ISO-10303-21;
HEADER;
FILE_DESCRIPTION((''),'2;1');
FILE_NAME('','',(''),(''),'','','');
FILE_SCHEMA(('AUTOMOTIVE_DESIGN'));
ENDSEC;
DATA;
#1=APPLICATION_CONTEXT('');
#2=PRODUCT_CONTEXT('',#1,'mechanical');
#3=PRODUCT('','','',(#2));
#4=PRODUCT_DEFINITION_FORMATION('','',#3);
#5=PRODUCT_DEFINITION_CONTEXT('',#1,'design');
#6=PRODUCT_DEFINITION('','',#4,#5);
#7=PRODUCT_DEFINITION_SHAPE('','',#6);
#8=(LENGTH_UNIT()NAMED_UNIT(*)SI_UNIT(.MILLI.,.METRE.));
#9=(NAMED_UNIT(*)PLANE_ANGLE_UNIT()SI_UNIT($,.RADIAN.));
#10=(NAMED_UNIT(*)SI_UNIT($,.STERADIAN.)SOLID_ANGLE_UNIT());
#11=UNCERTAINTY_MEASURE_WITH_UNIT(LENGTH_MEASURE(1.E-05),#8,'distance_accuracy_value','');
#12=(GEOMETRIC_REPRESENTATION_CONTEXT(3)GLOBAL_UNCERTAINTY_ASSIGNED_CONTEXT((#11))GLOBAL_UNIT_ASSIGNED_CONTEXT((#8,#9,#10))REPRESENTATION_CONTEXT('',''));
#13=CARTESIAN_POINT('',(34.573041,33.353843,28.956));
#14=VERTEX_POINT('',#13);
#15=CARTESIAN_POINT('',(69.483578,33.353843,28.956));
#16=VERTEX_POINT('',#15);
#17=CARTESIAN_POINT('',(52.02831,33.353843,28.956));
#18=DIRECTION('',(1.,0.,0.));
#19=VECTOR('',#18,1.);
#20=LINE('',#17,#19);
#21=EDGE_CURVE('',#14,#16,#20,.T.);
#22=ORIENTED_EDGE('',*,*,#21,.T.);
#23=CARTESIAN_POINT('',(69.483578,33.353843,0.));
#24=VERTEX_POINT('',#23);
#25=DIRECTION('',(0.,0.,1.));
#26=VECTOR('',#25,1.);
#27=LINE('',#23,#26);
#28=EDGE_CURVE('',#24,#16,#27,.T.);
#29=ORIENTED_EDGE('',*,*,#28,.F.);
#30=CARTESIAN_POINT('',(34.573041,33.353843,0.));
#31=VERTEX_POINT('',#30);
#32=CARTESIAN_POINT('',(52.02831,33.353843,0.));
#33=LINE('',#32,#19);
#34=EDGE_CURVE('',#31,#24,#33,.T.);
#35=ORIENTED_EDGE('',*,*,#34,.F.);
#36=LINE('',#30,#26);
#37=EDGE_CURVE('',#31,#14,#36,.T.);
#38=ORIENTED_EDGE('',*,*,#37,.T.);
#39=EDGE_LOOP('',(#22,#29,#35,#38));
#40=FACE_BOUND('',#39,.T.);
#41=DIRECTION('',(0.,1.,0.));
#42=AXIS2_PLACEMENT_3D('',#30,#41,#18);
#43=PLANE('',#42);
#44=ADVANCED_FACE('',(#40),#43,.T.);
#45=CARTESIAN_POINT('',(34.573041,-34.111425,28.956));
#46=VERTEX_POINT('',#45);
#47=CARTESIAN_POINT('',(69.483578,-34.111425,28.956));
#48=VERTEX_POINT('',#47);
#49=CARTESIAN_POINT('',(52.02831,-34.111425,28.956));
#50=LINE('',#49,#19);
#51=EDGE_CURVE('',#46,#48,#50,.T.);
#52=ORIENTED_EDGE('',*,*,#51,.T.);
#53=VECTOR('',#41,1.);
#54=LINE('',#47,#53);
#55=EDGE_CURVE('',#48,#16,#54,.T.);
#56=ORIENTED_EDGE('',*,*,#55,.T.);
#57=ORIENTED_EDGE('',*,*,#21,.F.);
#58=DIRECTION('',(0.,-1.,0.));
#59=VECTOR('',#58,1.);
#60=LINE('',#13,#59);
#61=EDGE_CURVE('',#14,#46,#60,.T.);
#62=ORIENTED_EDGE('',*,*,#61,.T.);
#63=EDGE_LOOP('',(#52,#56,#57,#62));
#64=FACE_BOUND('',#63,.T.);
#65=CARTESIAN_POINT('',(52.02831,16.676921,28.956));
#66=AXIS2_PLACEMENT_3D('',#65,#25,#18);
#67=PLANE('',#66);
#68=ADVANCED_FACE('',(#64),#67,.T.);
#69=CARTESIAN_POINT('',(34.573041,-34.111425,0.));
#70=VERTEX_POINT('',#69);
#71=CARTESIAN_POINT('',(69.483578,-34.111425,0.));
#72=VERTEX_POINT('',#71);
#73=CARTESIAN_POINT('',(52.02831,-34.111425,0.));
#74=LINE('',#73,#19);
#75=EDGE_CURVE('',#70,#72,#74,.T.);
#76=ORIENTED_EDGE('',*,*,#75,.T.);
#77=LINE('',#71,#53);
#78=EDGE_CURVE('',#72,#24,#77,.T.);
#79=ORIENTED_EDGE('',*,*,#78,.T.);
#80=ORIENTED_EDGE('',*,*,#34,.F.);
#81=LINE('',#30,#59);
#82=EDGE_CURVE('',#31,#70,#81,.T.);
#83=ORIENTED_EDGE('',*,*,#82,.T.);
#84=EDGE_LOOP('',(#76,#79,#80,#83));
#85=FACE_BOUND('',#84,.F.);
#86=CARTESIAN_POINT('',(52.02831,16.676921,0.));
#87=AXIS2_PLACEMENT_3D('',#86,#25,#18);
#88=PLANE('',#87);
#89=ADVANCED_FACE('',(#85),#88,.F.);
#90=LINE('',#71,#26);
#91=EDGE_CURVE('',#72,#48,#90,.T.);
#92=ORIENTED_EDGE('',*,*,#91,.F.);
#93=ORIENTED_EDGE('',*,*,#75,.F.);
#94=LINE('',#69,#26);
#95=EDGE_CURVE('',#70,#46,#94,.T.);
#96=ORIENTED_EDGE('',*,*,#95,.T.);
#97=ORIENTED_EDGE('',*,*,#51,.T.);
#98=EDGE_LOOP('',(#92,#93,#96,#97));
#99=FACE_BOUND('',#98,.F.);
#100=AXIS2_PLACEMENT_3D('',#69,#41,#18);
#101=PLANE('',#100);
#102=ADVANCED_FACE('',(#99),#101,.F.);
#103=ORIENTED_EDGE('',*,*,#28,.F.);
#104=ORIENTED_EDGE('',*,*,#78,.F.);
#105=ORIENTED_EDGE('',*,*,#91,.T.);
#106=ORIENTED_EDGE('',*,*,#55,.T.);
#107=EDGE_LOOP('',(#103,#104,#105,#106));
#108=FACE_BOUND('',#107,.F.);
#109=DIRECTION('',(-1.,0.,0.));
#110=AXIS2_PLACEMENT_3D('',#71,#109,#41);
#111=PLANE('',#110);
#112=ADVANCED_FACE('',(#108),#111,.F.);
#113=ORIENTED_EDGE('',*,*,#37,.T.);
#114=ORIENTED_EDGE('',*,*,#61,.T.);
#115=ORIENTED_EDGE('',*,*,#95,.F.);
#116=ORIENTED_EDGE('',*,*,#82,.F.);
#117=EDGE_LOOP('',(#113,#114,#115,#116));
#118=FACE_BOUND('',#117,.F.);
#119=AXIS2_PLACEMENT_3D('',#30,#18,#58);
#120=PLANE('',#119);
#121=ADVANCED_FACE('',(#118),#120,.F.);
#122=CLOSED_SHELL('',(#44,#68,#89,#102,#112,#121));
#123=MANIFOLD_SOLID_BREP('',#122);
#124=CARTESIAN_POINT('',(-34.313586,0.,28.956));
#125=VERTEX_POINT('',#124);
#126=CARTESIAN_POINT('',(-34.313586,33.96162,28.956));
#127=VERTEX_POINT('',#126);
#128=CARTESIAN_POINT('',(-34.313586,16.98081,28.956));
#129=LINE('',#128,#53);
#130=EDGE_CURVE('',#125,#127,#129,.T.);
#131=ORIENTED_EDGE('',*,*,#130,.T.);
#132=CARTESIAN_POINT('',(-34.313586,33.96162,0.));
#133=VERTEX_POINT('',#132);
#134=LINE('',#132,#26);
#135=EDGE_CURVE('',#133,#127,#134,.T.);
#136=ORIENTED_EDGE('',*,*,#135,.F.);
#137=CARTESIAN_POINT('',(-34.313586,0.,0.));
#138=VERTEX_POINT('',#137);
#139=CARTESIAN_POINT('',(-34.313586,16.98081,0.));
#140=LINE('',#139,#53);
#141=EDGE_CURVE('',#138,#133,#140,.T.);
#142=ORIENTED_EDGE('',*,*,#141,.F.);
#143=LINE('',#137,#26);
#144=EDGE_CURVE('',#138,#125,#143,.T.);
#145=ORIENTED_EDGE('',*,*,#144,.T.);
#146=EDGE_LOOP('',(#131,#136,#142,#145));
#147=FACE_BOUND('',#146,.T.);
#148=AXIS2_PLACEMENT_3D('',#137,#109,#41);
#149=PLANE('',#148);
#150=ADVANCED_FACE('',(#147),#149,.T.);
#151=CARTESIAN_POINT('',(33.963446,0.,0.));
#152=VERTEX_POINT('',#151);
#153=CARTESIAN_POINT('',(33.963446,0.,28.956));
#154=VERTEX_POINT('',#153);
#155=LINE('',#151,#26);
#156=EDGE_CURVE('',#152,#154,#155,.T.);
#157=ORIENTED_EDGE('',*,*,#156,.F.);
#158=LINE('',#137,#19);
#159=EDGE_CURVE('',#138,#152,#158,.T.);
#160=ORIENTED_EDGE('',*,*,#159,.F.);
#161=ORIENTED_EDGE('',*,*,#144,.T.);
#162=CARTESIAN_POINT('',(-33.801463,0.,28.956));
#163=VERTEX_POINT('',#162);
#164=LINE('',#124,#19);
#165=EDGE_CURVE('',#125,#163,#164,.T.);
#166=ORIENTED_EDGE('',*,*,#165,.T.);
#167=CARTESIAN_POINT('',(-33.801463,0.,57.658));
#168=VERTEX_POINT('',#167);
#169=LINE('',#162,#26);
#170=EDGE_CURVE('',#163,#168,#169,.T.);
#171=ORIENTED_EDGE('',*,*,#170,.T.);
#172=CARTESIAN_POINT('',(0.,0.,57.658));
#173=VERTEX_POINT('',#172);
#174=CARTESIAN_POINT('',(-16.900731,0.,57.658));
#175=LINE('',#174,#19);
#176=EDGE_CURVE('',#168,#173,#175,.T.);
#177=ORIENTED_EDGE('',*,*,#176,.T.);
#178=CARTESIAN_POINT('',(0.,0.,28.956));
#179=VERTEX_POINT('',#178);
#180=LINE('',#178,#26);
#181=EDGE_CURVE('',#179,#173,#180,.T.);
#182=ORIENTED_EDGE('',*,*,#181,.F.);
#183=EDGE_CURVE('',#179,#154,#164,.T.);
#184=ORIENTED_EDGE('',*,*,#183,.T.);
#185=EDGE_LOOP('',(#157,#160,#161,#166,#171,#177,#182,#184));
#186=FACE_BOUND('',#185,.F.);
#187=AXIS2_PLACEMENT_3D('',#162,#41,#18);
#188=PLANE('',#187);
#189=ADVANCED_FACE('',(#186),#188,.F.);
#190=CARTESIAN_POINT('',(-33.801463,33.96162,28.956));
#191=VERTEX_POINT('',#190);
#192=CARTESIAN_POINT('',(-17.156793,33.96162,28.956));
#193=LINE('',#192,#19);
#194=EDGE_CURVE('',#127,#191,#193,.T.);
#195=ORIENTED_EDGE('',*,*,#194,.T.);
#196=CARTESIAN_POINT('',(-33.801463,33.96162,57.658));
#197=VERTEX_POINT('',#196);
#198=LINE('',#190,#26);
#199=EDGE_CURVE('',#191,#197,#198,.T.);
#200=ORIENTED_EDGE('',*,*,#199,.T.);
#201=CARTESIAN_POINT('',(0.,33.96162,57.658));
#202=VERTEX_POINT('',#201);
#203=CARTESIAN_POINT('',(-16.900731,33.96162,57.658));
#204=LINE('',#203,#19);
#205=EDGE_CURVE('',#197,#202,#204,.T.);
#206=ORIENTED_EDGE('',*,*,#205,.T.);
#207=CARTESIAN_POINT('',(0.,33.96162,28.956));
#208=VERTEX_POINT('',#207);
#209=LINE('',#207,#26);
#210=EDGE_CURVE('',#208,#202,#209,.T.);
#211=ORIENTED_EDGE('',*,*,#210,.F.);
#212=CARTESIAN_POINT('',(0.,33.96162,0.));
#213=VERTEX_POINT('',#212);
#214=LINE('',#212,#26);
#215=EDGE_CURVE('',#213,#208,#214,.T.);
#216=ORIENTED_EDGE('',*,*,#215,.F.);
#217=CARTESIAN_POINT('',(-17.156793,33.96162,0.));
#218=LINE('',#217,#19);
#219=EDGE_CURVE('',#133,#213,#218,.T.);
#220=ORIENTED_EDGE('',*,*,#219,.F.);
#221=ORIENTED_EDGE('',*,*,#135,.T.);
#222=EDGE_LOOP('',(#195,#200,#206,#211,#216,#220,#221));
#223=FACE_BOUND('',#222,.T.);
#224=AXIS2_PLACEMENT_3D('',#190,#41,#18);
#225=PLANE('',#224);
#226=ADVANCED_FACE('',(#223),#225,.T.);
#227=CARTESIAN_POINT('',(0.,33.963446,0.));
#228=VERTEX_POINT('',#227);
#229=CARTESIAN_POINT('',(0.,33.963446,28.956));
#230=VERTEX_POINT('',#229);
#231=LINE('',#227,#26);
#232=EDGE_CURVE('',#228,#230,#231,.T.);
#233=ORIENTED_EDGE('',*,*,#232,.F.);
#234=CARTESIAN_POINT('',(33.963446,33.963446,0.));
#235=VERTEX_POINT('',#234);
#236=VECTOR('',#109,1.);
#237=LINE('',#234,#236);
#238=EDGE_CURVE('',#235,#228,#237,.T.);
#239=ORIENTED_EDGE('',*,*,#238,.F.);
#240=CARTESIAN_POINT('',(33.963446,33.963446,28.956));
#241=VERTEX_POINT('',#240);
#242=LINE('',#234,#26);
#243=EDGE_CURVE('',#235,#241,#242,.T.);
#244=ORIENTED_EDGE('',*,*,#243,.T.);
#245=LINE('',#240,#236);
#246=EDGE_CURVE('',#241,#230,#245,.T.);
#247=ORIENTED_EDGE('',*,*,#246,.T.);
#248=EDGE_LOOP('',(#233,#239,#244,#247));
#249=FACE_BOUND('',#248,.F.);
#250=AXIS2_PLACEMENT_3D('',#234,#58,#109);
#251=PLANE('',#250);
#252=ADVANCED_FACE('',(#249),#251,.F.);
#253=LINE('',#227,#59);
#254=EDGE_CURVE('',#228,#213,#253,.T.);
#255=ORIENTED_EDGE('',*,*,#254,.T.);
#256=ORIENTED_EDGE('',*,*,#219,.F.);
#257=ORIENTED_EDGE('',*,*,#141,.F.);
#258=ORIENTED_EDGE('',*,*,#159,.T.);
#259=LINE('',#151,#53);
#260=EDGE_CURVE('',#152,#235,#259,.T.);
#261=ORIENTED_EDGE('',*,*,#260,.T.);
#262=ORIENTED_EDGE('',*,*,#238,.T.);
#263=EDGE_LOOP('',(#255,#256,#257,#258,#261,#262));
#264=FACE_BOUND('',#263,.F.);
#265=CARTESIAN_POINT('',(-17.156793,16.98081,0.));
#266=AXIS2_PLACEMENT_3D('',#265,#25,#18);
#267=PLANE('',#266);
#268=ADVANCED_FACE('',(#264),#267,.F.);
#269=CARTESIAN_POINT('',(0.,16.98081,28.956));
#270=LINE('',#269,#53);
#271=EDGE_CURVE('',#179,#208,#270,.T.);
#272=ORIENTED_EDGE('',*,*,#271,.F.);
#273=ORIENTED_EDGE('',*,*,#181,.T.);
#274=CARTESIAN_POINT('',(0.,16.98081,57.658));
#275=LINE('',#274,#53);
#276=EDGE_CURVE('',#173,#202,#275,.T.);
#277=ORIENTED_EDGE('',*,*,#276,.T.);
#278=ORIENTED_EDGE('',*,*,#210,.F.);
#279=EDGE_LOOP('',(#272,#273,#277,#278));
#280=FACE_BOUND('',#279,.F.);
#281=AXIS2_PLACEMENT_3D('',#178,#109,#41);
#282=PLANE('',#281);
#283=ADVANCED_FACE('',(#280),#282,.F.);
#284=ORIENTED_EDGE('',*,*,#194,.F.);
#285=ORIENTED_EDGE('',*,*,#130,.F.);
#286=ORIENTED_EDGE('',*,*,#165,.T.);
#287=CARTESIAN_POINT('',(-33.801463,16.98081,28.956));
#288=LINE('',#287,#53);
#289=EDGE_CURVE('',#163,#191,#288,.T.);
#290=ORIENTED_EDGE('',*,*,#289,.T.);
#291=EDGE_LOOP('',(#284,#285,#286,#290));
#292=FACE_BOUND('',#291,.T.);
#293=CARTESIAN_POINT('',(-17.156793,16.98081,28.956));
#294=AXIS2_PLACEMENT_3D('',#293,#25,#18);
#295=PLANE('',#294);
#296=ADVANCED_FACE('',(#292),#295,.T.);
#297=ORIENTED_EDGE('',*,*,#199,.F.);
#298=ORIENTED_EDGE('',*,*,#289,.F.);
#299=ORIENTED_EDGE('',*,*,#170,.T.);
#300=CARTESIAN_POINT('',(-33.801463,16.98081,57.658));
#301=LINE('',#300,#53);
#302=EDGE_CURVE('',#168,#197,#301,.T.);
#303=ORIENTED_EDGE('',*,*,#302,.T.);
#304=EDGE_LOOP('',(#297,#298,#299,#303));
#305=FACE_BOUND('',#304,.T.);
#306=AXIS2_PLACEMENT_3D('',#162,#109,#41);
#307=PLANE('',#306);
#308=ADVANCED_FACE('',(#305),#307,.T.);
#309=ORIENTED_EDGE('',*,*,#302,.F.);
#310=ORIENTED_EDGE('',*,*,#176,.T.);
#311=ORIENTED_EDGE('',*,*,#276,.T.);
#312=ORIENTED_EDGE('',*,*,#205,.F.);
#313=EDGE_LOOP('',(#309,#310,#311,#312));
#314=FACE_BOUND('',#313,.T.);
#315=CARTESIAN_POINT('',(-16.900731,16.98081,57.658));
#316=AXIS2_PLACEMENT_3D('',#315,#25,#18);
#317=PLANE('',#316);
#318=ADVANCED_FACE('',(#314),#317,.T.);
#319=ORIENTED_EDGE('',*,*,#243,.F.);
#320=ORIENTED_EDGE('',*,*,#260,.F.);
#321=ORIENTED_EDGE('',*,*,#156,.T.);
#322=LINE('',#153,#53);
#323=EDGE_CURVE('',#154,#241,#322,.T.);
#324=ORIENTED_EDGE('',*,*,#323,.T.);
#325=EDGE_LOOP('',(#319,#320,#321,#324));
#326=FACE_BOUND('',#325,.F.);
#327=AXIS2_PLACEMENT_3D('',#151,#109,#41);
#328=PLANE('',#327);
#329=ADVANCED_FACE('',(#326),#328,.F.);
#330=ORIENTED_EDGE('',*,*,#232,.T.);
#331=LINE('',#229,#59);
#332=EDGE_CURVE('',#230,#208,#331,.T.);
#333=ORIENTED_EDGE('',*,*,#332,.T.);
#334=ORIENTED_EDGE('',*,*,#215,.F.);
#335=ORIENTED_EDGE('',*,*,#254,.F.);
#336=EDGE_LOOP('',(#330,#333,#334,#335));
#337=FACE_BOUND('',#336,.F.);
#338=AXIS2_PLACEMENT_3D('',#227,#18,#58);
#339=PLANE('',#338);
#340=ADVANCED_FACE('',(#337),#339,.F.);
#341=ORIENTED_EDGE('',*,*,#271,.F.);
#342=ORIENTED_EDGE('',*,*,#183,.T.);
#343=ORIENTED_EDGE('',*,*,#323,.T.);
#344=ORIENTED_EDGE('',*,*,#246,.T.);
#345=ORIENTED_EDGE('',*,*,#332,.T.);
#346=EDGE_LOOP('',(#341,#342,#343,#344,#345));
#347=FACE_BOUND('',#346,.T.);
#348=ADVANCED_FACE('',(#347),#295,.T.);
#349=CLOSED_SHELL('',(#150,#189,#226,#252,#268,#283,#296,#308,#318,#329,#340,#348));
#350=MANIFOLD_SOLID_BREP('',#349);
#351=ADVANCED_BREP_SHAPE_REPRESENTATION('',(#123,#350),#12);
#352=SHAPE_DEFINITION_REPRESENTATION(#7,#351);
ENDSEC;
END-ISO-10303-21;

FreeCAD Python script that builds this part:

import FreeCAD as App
import Part
import Sketcher
Q = App.Units.Quantity


def add_polygon(sketch, points):
    """Adds a closed chain of lines whose ends are joined by coincident constraints."""
    first, n = sketch.GeometryCount, len(points)
    for a, b in zip(points, points[1:] + points[:1]):
        sketch.addGeometry(Part.LineSegment(App.Vector(*a, 0), App.Vector(*b, 0)), False)
    for i in range(n):
        sketch.addConstraint(Sketcher.Constraint("Coincident", first + i, 2, first + (i + 1) % n, 1))

doc = App.newDocument("Part")
body = doc.addObject("PartDesign::Body", "Body")

# Sketch on XY plane
sketch1 = body.newObject("Sketcher::SketchObject", "Sketch")
sketch1.AttachmentSupport = (doc.getObject("XY_Plane"), [""])
sketch1.MapMode = "FlatFace"
add_polygon(sketch1, [(-90, 54), (-90, 0), (13, 0), (13, -53), (65, -53), (65, 54)])  # lines 0-5
sketch1.addConstraint(Sketcher.Constraint("Vertical", 0))
sketch1.addConstraint(Sketcher.Constraint("Horizontal", 1))
sketch1.addConstraint(Sketcher.Constraint("Vertical", 2))
sketch1.addConstraint(Sketcher.Constraint("Horizontal", 3))
sketch1.addConstraint(Sketcher.Constraint("Vertical", 4))
sketch1.addConstraint(Sketcher.Constraint("Horizontal", 5))
sketch1.addConstraint(Sketcher.Constraint("PointOnObject", 0, 2, -1))
sketch1.addConstraint(Sketcher.Constraint("DistanceX", 1, 1, 1, 2, Q("103.329919 mm")))
sketch1.addConstraint(Sketcher.Constraint("DistanceY", 0, 2, 0, 1, Q("53.710911 mm")))
sketch1.addConstraint(Sketcher.Constraint("DistanceY", 4, 1, 4, 2, Q("107.196059 mm")))
sketch1.addConstraint(Sketcher.Constraint("DistanceX", 3, 1, 3, 2, Q("52.128024 mm")))
sketch1.addConstraint(Sketcher.Constraint("DistanceX", -1, 1, 3, 2, Q("65.295018 mm")))
pad1 = body.newObject("PartDesign::Pad", "Pad")
pad1.Profile = sketch1
pad1.Length = Q("1.34 in")

# Sketch on XY plane
sketch2 = body.newObject("Sketcher::SketchObject", "Sketch001")
sketch2.AttachmentSupport = (doc.getObject("XY_Plane"), [""])
sketch2.MapMode = "FlatFace"
sketch2.AttachmentOffset = App.Placement(App.Vector(0, 0, 1.34 * 25.4), App.Rotation())
add_polygon(sketch2, [(-90, 54), (-90, 0), (-36, 0), (-36, 54)])  # lines 0-3
sketch2.addConstraint(Sketcher.Constraint("Vertical", 0))
sketch2.addConstraint(Sketcher.Constraint("Horizontal", 1))
sketch2.addConstraint(Sketcher.Constraint("Vertical", 2))
sketch2.addConstraint(Sketcher.Constraint("Horizontal", 3))
sketch2.addConstraint(Sketcher.Constraint("PointOnObject", 0, 2, -1))
sketch2.addConstraint(Sketcher.Constraint("DistanceX", 1, 1, 1, 2, Q("53.887531 mm")))
sketch2.addConstraint(Sketcher.Constraint("DistanceY", 0, 2, 0, 1, Q("53.710911 mm")))
sketch2.addConstraint(Sketcher.Constraint("DistanceX", 0, 2, -1, 1, Q("90.162925 mm")))
pad2 = body.newObject("PartDesign::Pad", "Pad001")
pad2.Profile = sketch2
pad2.Length = Q("1.47 in")
body2 = doc.addObject("PartDesign::Body", "Body001")

# Sketch on XY plane
sketch3 = body2.newObject("Sketcher::SketchObject", "Sketch002")
sketch3.AttachmentSupport = (doc.getObject("XY_Plane001"), [""])
sketch3.MapMode = "FlatFace"
add_polygon(sketch3, [(35, 33), (35, -34), (69, -34), (69, 33)])  # lines 0-3
sketch3.addConstraint(Sketcher.Constraint("Vertical", 0))
sketch3.addConstraint(Sketcher.Constraint("Horizontal", 1))
sketch3.addConstraint(Sketcher.Constraint("Vertical", 2))
sketch3.addConstraint(Sketcher.Constraint("Horizontal", 3))
sketch3.addConstraint(Sketcher.Constraint("DistanceY", 0, 2, 0, 1, Q("67.465268 mm")))
sketch3.addConstraint(Sketcher.Constraint("DistanceX", 1, 1, 1, 2, Q("34.910537 mm")))
sketch3.addConstraint(Sketcher.Constraint("DistanceX", -1, 1, 0, 2, Q("34.573041 mm")))
sketch3.addConstraint(Sketcher.Constraint("DistanceY", 0, 2, -1, 1, Q("34.111425 mm")))
pad3 = body2.newObject("PartDesign::Pad", "Pad002")
pad3.Profile = sketch3
pad3.Length = Q("1.14 in")
body3 = doc.addObject("PartDesign::Body", "Body002")

# Sketch on XY plane
sketch4 = body3.newObject("Sketcher::SketchObject", "Sketch003")
sketch4.AttachmentSupport = (doc.getObject("XY_Plane002"), [""])
sketch4.MapMode = "FlatFace"
add_polygon(sketch4, [(-34.313586, 33.96162), (-34.313586, 0), (33.963446, 0), (33.963446, 33.963446), (0, 33.963446), (0, 33.96162)])  # lines 0-5
sketch4.addConstraint(Sketcher.Constraint("Vertical", 0))
sketch4.addConstraint(Sketcher.Constraint("Horizontal", 1))
sketch4.addConstraint(Sketcher.Constraint("Vertical", 2))
sketch4.addConstraint(Sketcher.Constraint("Horizontal", 3))
sketch4.addConstraint(Sketcher.Constraint("Vertical", 4))
sketch4.addConstraint(Sketcher.Constraint("Horizontal", 5))
sketch4.addConstraint(Sketcher.Constraint("PointOnObject", 0, 2, -1))
sketch4.addConstraint(Sketcher.Constraint("PointOnObject", 3, 2, -2))
sketch4.addConstraint(Sketcher.Constraint("Equal", 3, 2))
sketch4.addConstraint(Sketcher.Constraint("DistanceX", 1, 1, 1, 2, Q("68.277031 mm")))
sketch4.addConstraint(Sketcher.Constraint("DistanceY", 0, 2, 0, 1, Q("33.96162 mm")))
sketch4.addConstraint(Sketcher.Constraint("DistanceX", 3, 2, 3, 1, Q("33.963446 mm")))
pad4 = body3.newObject("PartDesign::Pad", "Pad003")
pad4.Profile = sketch4
pad4.Length = Q("1.14 in")

# Sketch on XY plane
sketch5 = body3.newObject("Sketcher::SketchObject", "Sketch004")
sketch5.AttachmentSupport = (doc.getObject("XY_Plane002"), [""])
sketch5.MapMode = "FlatFace"
sketch5.AttachmentOffset = App.Placement(App.Vector(0, 0, 1.14 * 25.4), App.Rotation())
add_polygon(sketch5, [(-34, 34), (-34, 0), (0, 0), (0, 34)])  # lines 0-3
sketch5.addConstraint(Sketcher.Constraint("Vertical", 0))
sketch5.addConstraint(Sketcher.Constraint("Horizontal", 1))
sketch5.addConstraint(Sketcher.Constraint("Vertical", 2))
sketch5.addConstraint(Sketcher.Constraint("Horizontal", 3))
sketch5.addConstraint(Sketcher.Constraint("Coincident", 1, 2, -1, 1))
sketch5.addConstraint(Sketcher.Constraint("DistanceY", 0, 2, 0, 1, Q("33.96162 mm")))
sketch5.addConstraint(Sketcher.Constraint("DistanceX", 1, 1, 1, 2, Q("33.801463 mm")))
pad5 = body3.newObject("PartDesign::Pad", "Pad004")
pad5.Profile = sketch5
pad5.Length = Q("1.13 in")
body.Visibility = False

doc.recompute()
